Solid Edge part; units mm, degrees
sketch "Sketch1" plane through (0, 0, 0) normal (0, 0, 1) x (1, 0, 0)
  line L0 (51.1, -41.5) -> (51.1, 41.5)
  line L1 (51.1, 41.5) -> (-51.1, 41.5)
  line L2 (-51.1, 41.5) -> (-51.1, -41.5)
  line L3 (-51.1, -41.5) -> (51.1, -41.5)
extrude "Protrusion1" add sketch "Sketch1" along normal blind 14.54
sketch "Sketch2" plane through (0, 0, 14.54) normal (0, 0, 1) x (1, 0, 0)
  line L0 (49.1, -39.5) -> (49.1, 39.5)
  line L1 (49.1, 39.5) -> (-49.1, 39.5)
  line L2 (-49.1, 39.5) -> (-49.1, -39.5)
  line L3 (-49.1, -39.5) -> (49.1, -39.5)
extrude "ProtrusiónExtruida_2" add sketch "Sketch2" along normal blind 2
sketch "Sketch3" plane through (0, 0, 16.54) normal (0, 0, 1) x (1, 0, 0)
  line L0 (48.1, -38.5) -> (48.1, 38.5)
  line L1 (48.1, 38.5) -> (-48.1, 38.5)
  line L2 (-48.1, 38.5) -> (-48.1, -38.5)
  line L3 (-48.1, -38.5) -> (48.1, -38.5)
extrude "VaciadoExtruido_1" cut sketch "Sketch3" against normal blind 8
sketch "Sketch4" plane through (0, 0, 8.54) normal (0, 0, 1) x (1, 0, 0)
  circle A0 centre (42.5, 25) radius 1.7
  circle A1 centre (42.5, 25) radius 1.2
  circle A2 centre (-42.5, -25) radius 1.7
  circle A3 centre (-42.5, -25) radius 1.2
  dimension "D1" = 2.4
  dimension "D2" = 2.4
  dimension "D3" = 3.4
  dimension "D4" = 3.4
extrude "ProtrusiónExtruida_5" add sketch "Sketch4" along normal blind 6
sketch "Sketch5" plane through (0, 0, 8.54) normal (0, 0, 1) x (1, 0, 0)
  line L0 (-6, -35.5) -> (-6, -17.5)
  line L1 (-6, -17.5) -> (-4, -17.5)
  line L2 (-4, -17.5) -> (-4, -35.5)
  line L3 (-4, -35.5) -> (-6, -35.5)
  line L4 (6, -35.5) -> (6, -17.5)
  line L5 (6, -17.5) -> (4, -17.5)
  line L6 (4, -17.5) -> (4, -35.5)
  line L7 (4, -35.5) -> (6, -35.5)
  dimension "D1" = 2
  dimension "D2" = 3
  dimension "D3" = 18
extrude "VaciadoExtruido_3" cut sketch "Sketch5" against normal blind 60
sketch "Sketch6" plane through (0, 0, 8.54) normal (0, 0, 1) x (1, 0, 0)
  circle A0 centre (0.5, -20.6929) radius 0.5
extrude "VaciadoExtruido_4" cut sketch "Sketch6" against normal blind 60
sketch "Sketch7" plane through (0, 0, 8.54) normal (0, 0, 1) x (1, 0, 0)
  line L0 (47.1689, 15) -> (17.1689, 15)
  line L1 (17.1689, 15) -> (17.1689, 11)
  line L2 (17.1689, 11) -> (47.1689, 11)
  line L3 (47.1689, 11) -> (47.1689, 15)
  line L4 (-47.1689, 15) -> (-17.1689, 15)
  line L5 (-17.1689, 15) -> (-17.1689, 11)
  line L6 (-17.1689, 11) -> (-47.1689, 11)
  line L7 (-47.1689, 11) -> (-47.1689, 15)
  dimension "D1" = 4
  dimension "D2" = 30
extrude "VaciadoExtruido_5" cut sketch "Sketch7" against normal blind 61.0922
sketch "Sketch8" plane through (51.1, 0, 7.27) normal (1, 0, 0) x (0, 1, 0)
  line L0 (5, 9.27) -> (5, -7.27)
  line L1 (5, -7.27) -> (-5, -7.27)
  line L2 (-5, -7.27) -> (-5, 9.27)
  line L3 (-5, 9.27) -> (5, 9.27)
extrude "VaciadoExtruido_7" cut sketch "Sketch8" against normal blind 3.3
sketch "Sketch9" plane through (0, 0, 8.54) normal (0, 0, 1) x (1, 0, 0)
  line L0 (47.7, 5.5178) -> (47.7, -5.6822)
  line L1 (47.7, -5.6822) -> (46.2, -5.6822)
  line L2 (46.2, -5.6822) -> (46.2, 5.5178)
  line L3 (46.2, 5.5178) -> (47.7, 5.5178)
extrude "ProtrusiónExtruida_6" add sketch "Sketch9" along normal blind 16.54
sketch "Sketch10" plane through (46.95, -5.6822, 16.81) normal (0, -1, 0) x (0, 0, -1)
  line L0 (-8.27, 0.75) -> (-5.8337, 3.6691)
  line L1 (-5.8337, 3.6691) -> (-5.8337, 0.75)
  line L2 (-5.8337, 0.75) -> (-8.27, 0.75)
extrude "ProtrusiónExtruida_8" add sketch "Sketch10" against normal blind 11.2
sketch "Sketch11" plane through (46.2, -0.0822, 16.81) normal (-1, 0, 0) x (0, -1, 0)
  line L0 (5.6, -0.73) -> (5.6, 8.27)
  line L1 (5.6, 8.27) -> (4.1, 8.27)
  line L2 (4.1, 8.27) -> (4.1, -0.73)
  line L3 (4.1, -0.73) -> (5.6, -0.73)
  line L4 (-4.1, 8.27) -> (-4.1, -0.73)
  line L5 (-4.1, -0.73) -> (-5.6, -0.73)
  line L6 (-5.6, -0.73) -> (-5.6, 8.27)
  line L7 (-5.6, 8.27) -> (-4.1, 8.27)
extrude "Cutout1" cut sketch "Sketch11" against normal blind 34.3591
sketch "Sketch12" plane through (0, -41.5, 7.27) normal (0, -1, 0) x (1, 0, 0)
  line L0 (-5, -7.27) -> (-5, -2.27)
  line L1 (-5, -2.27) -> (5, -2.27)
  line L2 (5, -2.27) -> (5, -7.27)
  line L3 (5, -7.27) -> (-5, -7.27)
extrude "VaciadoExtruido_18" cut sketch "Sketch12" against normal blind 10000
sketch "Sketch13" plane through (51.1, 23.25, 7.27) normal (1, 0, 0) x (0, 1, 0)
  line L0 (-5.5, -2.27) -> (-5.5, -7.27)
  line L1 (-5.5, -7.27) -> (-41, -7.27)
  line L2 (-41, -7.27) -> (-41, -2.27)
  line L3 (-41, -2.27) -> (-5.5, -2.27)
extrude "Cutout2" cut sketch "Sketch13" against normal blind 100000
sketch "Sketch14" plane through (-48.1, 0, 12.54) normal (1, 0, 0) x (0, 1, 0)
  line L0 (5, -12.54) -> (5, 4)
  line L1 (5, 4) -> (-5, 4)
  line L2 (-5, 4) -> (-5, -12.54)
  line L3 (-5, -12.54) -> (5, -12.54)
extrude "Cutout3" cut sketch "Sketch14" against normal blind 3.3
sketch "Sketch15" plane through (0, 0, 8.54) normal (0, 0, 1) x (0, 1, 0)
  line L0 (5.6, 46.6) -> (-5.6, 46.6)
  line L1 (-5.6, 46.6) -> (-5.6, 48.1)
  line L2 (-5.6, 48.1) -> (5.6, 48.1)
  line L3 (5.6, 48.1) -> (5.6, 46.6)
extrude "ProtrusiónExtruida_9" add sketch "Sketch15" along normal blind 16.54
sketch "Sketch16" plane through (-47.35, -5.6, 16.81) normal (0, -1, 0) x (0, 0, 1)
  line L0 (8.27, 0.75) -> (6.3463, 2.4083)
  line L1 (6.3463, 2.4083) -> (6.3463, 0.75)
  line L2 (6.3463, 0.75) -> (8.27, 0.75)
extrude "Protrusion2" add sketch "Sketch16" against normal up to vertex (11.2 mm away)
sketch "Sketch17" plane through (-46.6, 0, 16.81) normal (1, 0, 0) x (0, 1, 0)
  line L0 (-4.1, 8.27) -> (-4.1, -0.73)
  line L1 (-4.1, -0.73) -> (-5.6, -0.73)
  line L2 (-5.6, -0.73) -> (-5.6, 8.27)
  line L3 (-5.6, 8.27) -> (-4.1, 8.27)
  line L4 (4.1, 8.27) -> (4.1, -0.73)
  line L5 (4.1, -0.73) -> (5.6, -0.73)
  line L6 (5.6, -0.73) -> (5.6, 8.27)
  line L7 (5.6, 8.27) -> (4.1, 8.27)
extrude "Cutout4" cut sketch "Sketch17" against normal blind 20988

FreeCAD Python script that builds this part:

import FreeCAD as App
import Part
import Sketcher
Q = App.Units.Quantity

doc = App.newDocument("Part")
body = doc.addObject("PartDesign::Body", "Body")

# Sketch on XY plane
sketch1 = body.newObject("Sketcher::SketchObject", "Sketch")
sketch1.AttachmentSupport = (doc.getObject("XY_Plane"), [""])
sketch1.MapMode = "FlatFace"
sketch1.addGeometry(Part.LineSegment(App.Vector(-51, -42, 0), App.Vector(51, -42, 0)), False)
sketch1.addGeometry(Part.LineSegment(App.Vector(51, -42, 0), App.Vector(51, 42, 0)), False)
sketch1.addGeometry(Part.LineSegment(App.Vector(51, 42, 0), App.Vector(-51, 42, 0)), False)
sketch1.addGeometry(Part.LineSegment(App.Vector(-51, 42, 0), App.Vector(-51, -42, 0)), False)
sketch1.addConstraint(Sketcher.Constraint("Coincident", 0, 2, 1, 1))
sketch1.addConstraint(Sketcher.Constraint("Coincident", 1, 2, 2, 1))
sketch1.addConstraint(Sketcher.Constraint("Coincident", 2, 2, 3, 1))
sketch1.addConstraint(Sketcher.Constraint("Coincident", 3, 2, 0, 1))
sketch1.addConstraint(Sketcher.Constraint("Horizontal", 0))
sketch1.addConstraint(Sketcher.Constraint("Vertical", 1))
sketch1.addConstraint(Sketcher.Constraint("Horizontal", 2))
sketch1.addConstraint(Sketcher.Constraint("Vertical", 3))
sketch1.addConstraint(Sketcher.Constraint("Symmetric", 0, 2, 2, 2, -1, 1))
sketch1.addConstraint(Sketcher.Constraint("DistanceY", 1, 1, 1, 2, Q("83 mm")))
sketch1.addConstraint(Sketcher.Constraint("DistanceX", 0, 1, 0, 2, Q("102.2 mm")))
pad1 = body.newObject("PartDesign::Pad", "Pad")
pad1.Profile = sketch1
pad1.Length = 14.54

# Sketch on XY plane
sketch2 = body.newObject("Sketcher::SketchObject", "Sketch001")
sketch2.AttachmentSupport = (doc.getObject("XY_Plane"), [""])
sketch2.MapMode = "FlatFace"
sketch2.AttachmentOffset = App.Placement(App.Vector(0, 0, 14.54), App.Rotation())
sketch2.addGeometry(Part.LineSegment(App.Vector(-49, -40, 0), App.Vector(49, -40, 0)), False)
sketch2.addGeometry(Part.LineSegment(App.Vector(49, -40, 0), App.Vector(49, 40, 0)), False)
sketch2.addGeometry(Part.LineSegment(App.Vector(49, 40, 0), App.Vector(-49, 40, 0)), False)
sketch2.addGeometry(Part.LineSegment(App.Vector(-49, 40, 0), App.Vector(-49, -40, 0)), False)
sketch2.addConstraint(Sketcher.Constraint("Coincident", 0, 2, 1, 1))
sketch2.addConstraint(Sketcher.Constraint("Coincident", 1, 2, 2, 1))
sketch2.addConstraint(Sketcher.Constraint("Coincident", 2, 2, 3, 1))
sketch2.addConstraint(Sketcher.Constraint("Coincident", 3, 2, 0, 1))
sketch2.addConstraint(Sketcher.Constraint("Horizontal", 0))
sketch2.addConstraint(Sketcher.Constraint("Vertical", 1))
sketch2.addConstraint(Sketcher.Constraint("Horizontal", 2))
sketch2.addConstraint(Sketcher.Constraint("Vertical", 3))
sketch2.addConstraint(Sketcher.Constraint("Symmetric", 0, 2, 2, 2, -1, 1))
sketch2.addConstraint(Sketcher.Constraint("DistanceY", 1, 1, 1, 2, Q("79 mm")))
sketch2.addConstraint(Sketcher.Constraint("DistanceX", 0, 1, 0, 2, Q("98.2 mm")))
pad2 = body.newObject("PartDesign::Pad", "Pad001")
pad2.Profile = sketch2
pad2.Length = 2

# Sketch on XY plane
sketch3 = body.newObject("Sketcher::SketchObject", "Sketch002")
sketch3.AttachmentSupport = (doc.getObject("XY_Plane"), [""])
sketch3.MapMode = "FlatFace"
sketch3.AttachmentOffset = App.Placement(App.Vector(0, 0, 16.54), App.Rotation())
sketch3.addGeometry(Part.LineSegment(App.Vector(-48, -38, 0), App.Vector(48, -38, 0)), False)
sketch3.addGeometry(Part.LineSegment(App.Vector(48, -38, 0), App.Vector(48, 38, 0)), False)
sketch3.addGeometry(Part.LineSegment(App.Vector(48, 38, 0), App.Vector(-48, 38, 0)), False)
sketch3.addGeometry(Part.LineSegment(App.Vector(-48, 38, 0), App.Vector(-48, -38, 0)), False)
sketch3.addConstraint(Sketcher.Constraint("Coincident", 0, 2, 1, 1))
sketch3.addConstraint(Sketcher.Constraint("Coincident", 1, 2, 2, 1))
sketch3.addConstraint(Sketcher.Constraint("Coincident", 2, 2, 3, 1))
sketch3.addConstraint(Sketcher.Constraint("Coincident", 3, 2, 0, 1))
sketch3.addConstraint(Sketcher.Constraint("Horizontal", 0))
sketch3.addConstraint(Sketcher.Constraint("Vertical", 1))
sketch3.addConstraint(Sketcher.Constraint("Horizontal", 2))
sketch3.addConstraint(Sketcher.Constraint("Vertical", 3))
sketch3.addConstraint(Sketcher.Constraint("Symmetric", 0, 2, 2, 2, -1, 1))
sketch3.addConstraint(Sketcher.Constraint("DistanceY", 1, 1, 1, 2, Q("77 mm")))
sketch3.addConstraint(Sketcher.Constraint("DistanceX", 0, 1, 0, 2, Q("96.2 mm")))
pocket1 = body.newObject("PartDesign::Pocket", "Pocket")
pocket1.Profile = sketch3
pocket1.Length = 8

# Sketch on XY plane
sketch4 = body.newObject("Sketcher::SketchObject", "Sketch003")
sketch4.AttachmentSupport = (doc.getObject("XY_Plane"), [""])
sketch4.MapMode = "FlatFace"
sketch4.AttachmentOffset = App.Placement(App.Vector(0, 0, 8.54), App.Rotation())
sketch4.addGeometry(Part.Circle(App.Vector(42.5, 25, 0), App.Vector(0, 0, 1), 1.7), False)
sketch4.addGeometry(Part.Circle(App.Vector(42.5, 25, 0), App.Vector(0, 0, 1), 1.2), False)
sketch4.addGeometry(Part.Circle(App.Vector(-42.5, -25, 0), App.Vector(0, 0, 1), 1.7), False)
sketch4.addGeometry(Part.Circle(App.Vector(-42.5, -25, 0), App.Vector(0, 0, 1), 1.2), False)
sketch4.addConstraint(Sketcher.Constraint("Coincident", 1, 3, 0, 3))
sketch4.addConstraint(Sketcher.Constraint("Coincident", 3, 3, 2, 3))
sketch4.addConstraint(Sketcher.Constraint("Equal", 0, 2))
sketch4.addConstraint(Sketcher.Constraint("Equal", 1, 3))
sketch4.addConstraint(Sketcher.Constraint("Symmetric", 0, 3, 2, 3, -1, 1))
sketch4.addConstraint(Sketcher.Constraint("Diameter", 0, Q("3.4 mm")))
sketch4.addConstraint(Sketcher.Constraint("Diameter", 1, Q("2.4 mm")))
sketch4.addConstraint(Sketcher.Constraint("DistanceY", -1, 1, 0, 3, Q("25 mm")))
sketch4.addConstraint(Sketcher.Constraint("DistanceX", 2, 3, 0, 3, Q("85 mm")))
pad3 = body.newObject("PartDesign::Pad", "Pad002")
pad3.Profile = sketch4
pad3.Length = 6

# Sketch on XY plane
sketch5 = body.newObject("Sketcher::SketchObject", "Sketch004")
sketch5.AttachmentSupport = (doc.getObject("XY_Plane"), [""])
sketch5.MapMode = "FlatFace"
sketch5.AttachmentOffset = App.Placement(App.Vector(0, 0, 8.54), App.Rotation())
sketch5.addGeometry(Part.LineSegment(App.Vector(-6, -17.5, 0), App.Vector(-6, -35.5, 0)), False)
sketch5.addGeometry(Part.LineSegment(App.Vector(-6, -35.5, 0), App.Vector(-4, -35.5, 0)), False)
sketch5.addGeometry(Part.LineSegment(App.Vector(-4, -35.5, 0), App.Vector(-4, -17.5, 0)), False)
sketch5.addGeometry(Part.LineSegment(App.Vector(-4, -17.5, 0), App.Vector(-6, -17.5, 0)), False)
sketch5.addGeometry(Part.LineSegment(App.Vector(4, -35.5, 0), App.Vector(6, -35.5, 0)), False)
sketch5.addGeometry(Part.LineSegment(App.Vector(6, -35.5, 0), App.Vector(6, -17.5, 0)), False)
sketch5.addGeometry(Part.LineSegment(App.Vector(6, -17.5, 0), App.Vector(4, -17.5, 0)), False)
sketch5.addGeometry(Part.LineSegment(App.Vector(4, -17.5, 0), App.Vector(4, -35.5, 0)), False)
sketch5.addConstraint(Sketcher.Constraint("Coincident", 0, 2, 1, 1))
sketch5.addConstraint(Sketcher.Constraint("Coincident", 1, 2, 2, 1))
sketch5.addConstraint(Sketcher.Constraint("Coincident", 2, 2, 3, 1))
sketch5.addConstraint(Sketcher.Constraint("Coincident", 3, 2, 0, 1))
sketch5.addConstraint(Sketcher.Constraint("Coincident", 4, 2, 5, 1))
sketch5.addConstraint(Sketcher.Constraint("Coincident", 5, 2, 6, 1))
sketch5.addConstraint(Sketcher.Constraint("Coincident", 6, 2, 7, 1))
sketch5.addConstraint(Sketcher.Constraint("Coincident", 7, 2, 4, 1))
sketch5.addConstraint(Sketcher.Constraint("Vertical", 0))
sketch5.addConstraint(Sketcher.Constraint("Horizontal", 1))
sketch5.addConstraint(Sketcher.Constraint("Vertical", 2))
sketch5.addConstraint(Sketcher.Constraint("Horizontal", 3))
sketch5.addConstraint(Sketcher.Constraint("Horizontal", 4))
sketch5.addConstraint(Sketcher.Constraint("Vertical", 5))
sketch5.addConstraint(Sketcher.Constraint("Horizontal", 6))
sketch5.addConstraint(Sketcher.Constraint("Vertical", 7))
sketch5.addConstraint(Sketcher.Constraint("Symmetric", 0, 2, 4, 2, -2))
sketch5.addConstraint(Sketcher.Constraint("Symmetric", 2, 2, 6, 2, -2))
sketch5.addConstraint(Sketcher.Constraint("DistanceX", 1, 1, 1, 2, Q("2 mm")))
sketch5.addConstraint(Sketcher.Constraint("DistanceY", 0, 2, 0, 1, Q("18 mm")))
sketch5.addConstraint(Sketcher.Constraint("DistanceX", 0, 2, -1, 1, Q("6 mm")))
sketch5.addConstraint(Sketcher.Constraint("DistanceY", 0, 2, -1, 1, Q("35.5 mm")))
pocket2 = body.newObject("PartDesign::Pocket", "Pocket001")
pocket2.Profile = sketch5
pocket2.Length = 60

# Sketch on XY plane
sketch6 = body.newObject("Sketcher::SketchObject", "Sketch005")
sketch6.AttachmentSupport = (doc.getObject("XY_Plane"), [""])
sketch6.MapMode = "FlatFace"
sketch6.AttachmentOffset = App.Placement(App.Vector(0, 0, 8.54), App.Rotation())
sketch6.addGeometry(Part.Circle(App.Vector(0.5, -20.7, 0), App.Vector(0, 0, 1), 0.5), False)
sketch6.addConstraint(Sketcher.Constraint("Diameter", 0, Q("1 mm")))
sketch6.addConstraint(Sketcher.Constraint("DistanceX", -1, 1, 0, 3, Q("0.5 mm")))
sketch6.addConstraint(Sketcher.Constraint("DistanceY", 0, 3, -1, 1, Q("20.693 mm")))
pocket3 = body.newObject("PartDesign::Pocket", "Pocket002")
pocket3.Profile = sketch6
pocket3.Length = 60

# Sketch on XY plane
sketch7 = body.newObject("Sketcher::SketchObject", "Sketch006")
sketch7.AttachmentSupport = (doc.getObject("XY_Plane"), [""])
sketch7.MapMode = "FlatFace"
sketch7.AttachmentOffset = App.Placement(App.Vector(0, 0, 8.54), App.Rotation())
sketch7.addGeometry(Part.LineSegment(App.Vector(47.2, 11, 0), App.Vector(47.2, 15, 0)), False)
sketch7.addGeometry(Part.LineSegment(App.Vector(47.2, 15, 0), App.Vector(17.2, 15, 0)), False)
sketch7.addGeometry(Part.LineSegment(App.Vector(17.2, 15, 0), App.Vector(17.2, 11, 0)), False)
sketch7.addGeometry(Part.LineSegment(App.Vector(17.2, 11, 0), App.Vector(47.2, 11, 0)), False)
sketch7.addGeometry(Part.LineSegment(App.Vector(-17.2, 15, 0), App.Vector(-47.2, 15, 0)), False)
sketch7.addGeometry(Part.LineSegment(App.Vector(-47.2, 15, 0), App.Vector(-47.2, 11, 0)), False)
sketch7.addGeometry(Part.LineSegment(App.Vector(-47.2, 11, 0), App.Vector(-17.2, 11, 0)), False)
sketch7.addGeometry(Part.LineSegment(App.Vector(-17.2, 11, 0), App.Vector(-17.2, 15, 0)), False)
sketch7.addConstraint(Sketcher.Constraint("Coincident", 0, 2, 1, 1))
sketch7.addConstraint(Sketcher.Constraint("Coincident", 1, 2, 2, 1))
sketch7.addConstraint(Sketcher.Constraint("Coincident", 2, 2, 3, 1))
sketch7.addConstraint(Sketcher.Constraint("Coincident", 3, 2, 0, 1))
sketch7.addConstraint(Sketcher.Constraint("Coincident", 4, 2, 5, 1))
sketch7.addConstraint(Sketcher.Constraint("Coincident", 5, 2, 6, 1))
sketch7.addConstraint(Sketcher.Constraint("Coincident", 6, 2, 7, 1))
sketch7.addConstraint(Sketcher.Constraint("Coincident", 7, 2, 4, 1))
sketch7.addConstraint(Sketcher.Constraint("Vertical", 0))
sketch7.addConstraint(Sketcher.Constraint("Horizontal", 1))
sketch7.addConstraint(Sketcher.Constraint("Vertical", 2))
sketch7.addConstraint(Sketcher.Constraint("Horizontal", 3))
sketch7.addConstraint(Sketcher.Constraint("Horizontal", 4))
sketch7.addConstraint(Sketcher.Constraint("Vertical", 5))
sketch7.addConstraint(Sketcher.Constraint("Horizontal", 6))
sketch7.addConstraint(Sketcher.Constraint("Vertical", 7))
sketch7.addConstraint(Sketcher.Constraint("Symmetric", 0, 2, 4, 2, -2))
sketch7.addConstraint(Sketcher.Constraint("Symmetric", 2, 2, 6, 2, -2))
sketch7.addConstraint(Sketcher.Constraint("DistanceX", 1, 2, 1, 1, Q("30 mm")))
sketch7.addConstraint(Sketcher.Constraint("DistanceY", 0, 1, 0, 2, Q("4 mm")))
sketch7.addConstraint(Sketcher.Constraint("DistanceY", -1, 1, 0, 2, Q("15 mm")))
sketch7.addConstraint(Sketcher.Constraint("DistanceX", -1, 1, 0, 2, Q("47.169 mm")))
pocket4 = body.newObject("PartDesign::Pocket", "Pocket003")
pocket4.Profile = sketch7
pocket4.Length = 61.0922

# Sketch on YZ plane
sketch8 = body.newObject("Sketcher::SketchObject", "Sketch007")
sketch8.AttachmentSupport = (doc.getObject("YZ_Plane"), [""])
sketch8.MapMode = "FlatFace"
sketch8.AttachmentOffset = App.Placement(App.Vector(0, 0, 51.1), App.Rotation())
sketch8.addGeometry(Part.LineSegment(App.Vector(5, 0, 0), App.Vector(5, 17, 0)), False)
sketch8.addGeometry(Part.LineSegment(App.Vector(5, 17, 0), App.Vector(-5, 17, 0)), False)
sketch8.addGeometry(Part.LineSegment(App.Vector(-5, 17, 0), App.Vector(-5, 0, 0)), False)
sketch8.addGeometry(Part.LineSegment(App.Vector(-5, 0, 0), App.Vector(5, 0, 0)), False)
sketch8.addConstraint(Sketcher.Constraint("Coincident", 0, 2, 1, 1))
sketch8.addConstraint(Sketcher.Constraint("Coincident", 1, 2, 2, 1))
sketch8.addConstraint(Sketcher.Constraint("Coincident", 2, 2, 3, 1))
sketch8.addConstraint(Sketcher.Constraint("Coincident", 3, 2, 0, 1))
sketch8.addConstraint(Sketcher.Constraint("Vertical", 0))
sketch8.addConstraint(Sketcher.Constraint("Horizontal", 1))
sketch8.addConstraint(Sketcher.Constraint("Vertical", 2))
sketch8.addConstraint(Sketcher.Constraint("Horizontal", 3))
sketch8.addConstraint(Sketcher.Constraint("Symmetric", 2, 2, 3, 2, -1, 1))
sketch8.addConstraint(Sketcher.Constraint("DistanceX", 1, 2, 1, 1, Q("10 mm")))
sketch8.addConstraint(Sketcher.Constraint("DistanceY", 0, 1, 0, 2, Q("16.54 mm")))
pocket5 = body.newObject("PartDesign::Pocket", "Pocket004")
pocket5.Profile = sketch8
pocket5.Length = 3.3

# Sketch on XY plane
sketch9 = body.newObject("Sketcher::SketchObject", "Sketch008")
sketch9.AttachmentSupport = (doc.getObject("XY_Plane"), [""])
sketch9.MapMode = "FlatFace"
sketch9.AttachmentOffset = App.Placement(App.Vector(0, 0, 8.54), App.Rotation())
sketch9.addGeometry(Part.LineSegment(App.Vector(47.7, -5.7, 0), App.Vector(47.7, 5.5, 0)), False)
sketch9.addGeometry(Part.LineSegment(App.Vector(47.7, 5.5, 0), App.Vector(46.2, 5.5, 0)), False)
sketch9.addGeometry(Part.LineSegment(App.Vector(46.2, 5.5, 0), App.Vector(46.2, -5.7, 0)), False)
sketch9.addGeometry(Part.LineSegment(App.Vector(46.2, -5.7, 0), App.Vector(47.7, -5.7, 0)), False)
sketch9.addConstraint(Sketcher.Constraint("Coincident", 0, 2, 1, 1))
sketch9.addConstraint(Sketcher.Constraint("Coincident", 1, 2, 2, 1))
sketch9.addConstraint(Sketcher.Constraint("Coincident", 2, 2, 3, 1))
sketch9.addConstraint(Sketcher.Constraint("Coincident", 3, 2, 0, 1))
sketch9.addConstraint(Sketcher.Constraint("Vertical", 0))
sketch9.addConstraint(Sketcher.Constraint("Horizontal", 1))
sketch9.addConstraint(Sketcher.Constraint("Vertical", 2))
sketch9.addConstraint(Sketcher.Constraint("Horizontal", 3))
sketch9.addConstraint(Sketcher.Constraint("DistanceX", 1, 2, 1, 1, Q("1.5 mm")))
sketch9.addConstraint(Sketcher.Constraint("DistanceY", 0, 1, 0, 2, Q("11.2 mm")))
sketch9.addConstraint(Sketcher.Constraint("DistanceX", -1, 1, 0, 2, Q("47.7 mm")))
sketch9.addConstraint(Sketcher.Constraint("DistanceY", -1, 1, 0, 2, Q("5.5178 mm")))
pad4 = body.newObject("PartDesign::Pad", "Pad003")
pad4.Profile = sketch9
pad4.Length = 16.54

# Sketch on XZ plane
sketch10 = body.newObject("Sketcher::SketchObject", "Sketch009")
sketch10.AttachmentSupport = (doc.getObject("XZ_Plane"), [""])
sketch10.MapMode = "FlatFace"
sketch10.AttachmentOffset = App.Placement(App.Vector(0, 0, 5.6822), App.Rotation())
sketch10.addGeometry(Part.LineSegment(App.Vector(50.6, 22.6, 0), App.Vector(47.7, 25.1, 0)), False)
sketch10.addGeometry(Part.LineSegment(App.Vector(47.7, 25.1, 0), App.Vector(47.7, 22.6, 0)), False)
sketch10.addGeometry(Part.LineSegment(App.Vector(47.7, 22.6, 0), App.Vector(50.6, 22.6, 0)), False)
sketch10.addConstraint(Sketcher.Constraint("Coincident", 0, 2, 1, 1))
sketch10.addConstraint(Sketcher.Constraint("Coincident", 1, 2, 2, 1))
sketch10.addConstraint(Sketcher.Constraint("Coincident", 2, 2, 0, 1))
sketch10.addConstraint(Sketcher.Constraint("Vertical", 1))
sketch10.addConstraint(Sketcher.Constraint("Horizontal", 2))
sketch10.addConstraint(Sketcher.Constraint("DistanceX", -1, 1, 0, 2, Q("47.7 mm")))
sketch10.addConstraint(Sketcher.Constraint("DistanceX", 2, 1, 2, 2, Q("2.919 mm")))
sketch10.addConstraint(Sketcher.Constraint("DistanceY", -1, 1, 0, 2, Q("25.08 mm")))
sketch10.addConstraint(Sketcher.Constraint("DistanceY", 1, 2, 1, 1, Q("2.4363 mm")))
pad5 = body.newObject("PartDesign::Pad", "Pad004")
pad5.Profile = sketch10
pad5.Length = 11.2
pad5.Reversed = True

# Sketch on YZ plane
sketch11 = body.newObject("Sketcher::SketchObject", "Sketch010")
sketch11.AttachmentSupport = (doc.getObject("YZ_Plane"), [""])
sketch11.MapMode = "FlatFace"
sketch11.AttachmentOffset = App.Placement(App.Vector(0, 0, 46.2), App.Rotation())
sketch11.addGeometry(Part.LineSegment(App.Vector(-4.2, 16.1, 0), App.Vector(-5.7, 16.1, 0)), False)
sketch11.addGeometry(Part.LineSegment(App.Vector(-5.7, 16.1, 0), App.Vector(-5.7, 25.1, 0)), False)
sketch11.addGeometry(Part.LineSegment(App.Vector(-5.7, 25.1, 0), App.Vector(-4.2, 25.1, 0)), False)
sketch11.addGeometry(Part.LineSegment(App.Vector(-4.2, 25.1, 0), App.Vector(-4.2, 16.1, 0)), False)
sketch11.addGeometry(Part.LineSegment(App.Vector(4, 16.1, 0), App.Vector(4, 25.1, 0)), False)
sketch11.addGeometry(Part.LineSegment(App.Vector(4, 25.1, 0), App.Vector(5.5, 25.1, 0)), False)
sketch11.addGeometry(Part.LineSegment(App.Vector(5.5, 25.1, 0), App.Vector(5.5, 16.1, 0)), False)
sketch11.addGeometry(Part.LineSegment(App.Vector(5.5, 16.1, 0), App.Vector(4, 16.1, 0)), False)
sketch11.addConstraint(Sketcher.Constraint("Coincident", 0, 2, 1, 1))
sketch11.addConstraint(Sketcher.Constraint("Coincident", 1, 2, 2, 1))
sketch11.addConstraint(Sketcher.Constraint("Coincident", 2, 2, 3, 1))
sketch11.addConstraint(Sketcher.Constraint("Coincident", 3, 2, 0, 1))
sketch11.addConstraint(Sketcher.Constraint("Coincident", 4, 2, 5, 1))
sketch11.addConstraint(Sketcher.Constraint("Coincident", 5, 2, 6, 1))
sketch11.addConstraint(Sketcher.Constraint("Coincident", 6, 2, 7, 1))
sketch11.addConstraint(Sketcher.Constraint("Coincident", 7, 2, 4, 1))
sketch11.addConstraint(Sketcher.Constraint("Horizontal", 0))
sketch11.addConstraint(Sketcher.Constraint("Vertical", 1))
sketch11.addConstraint(Sketcher.Constraint("Horizontal", 2))
sketch11.addConstraint(Sketcher.Constraint("Vertical", 3))
sketch11.addConstraint(Sketcher.Constraint("Vertical", 4))
sketch11.addConstraint(Sketcher.Constraint("Horizontal", 5))
sketch11.addConstraint(Sketcher.Constraint("Vertical", 6))
sketch11.addConstraint(Sketcher.Constraint("Horizontal", 7))
sketch11.addConstraint(Sketcher.Constraint("Horizontal", 2, 2, 4, 2))
sketch11.addConstraint(Sketcher.Constraint("Horizontal", 3, 2, 6, 2))
sketch11.addConstraint(Sketcher.Constraint("Equal", 2, 5))
sketch11.addConstraint(Sketcher.Constraint("DistanceY", 1, 1, 1, 2, Q("9 mm")))
sketch11.addConstraint(Sketcher.Constraint("DistanceX", 0, 2, 0, 1, Q("1.5 mm")))
sketch11.addConstraint(Sketcher.Constraint("DistanceX", 2, 2, 4, 2, Q("8.2 mm")))
sketch11.addConstraint(Sketcher.Constraint("DistanceY", -1, 1, 0, 2, Q("16.08 mm")))
sketch11.addConstraint(Sketcher.Constraint("DistanceX", 0, 2, -1, 1, Q("5.6822 mm")))
pocket6 = body.newObject("PartDesign::Pocket", "Pocket005")
pocket6.Profile = sketch11
pocket6.Length = 34.3591
pocket6.Reversed = True

# Sketch on XZ plane
sketch12 = body.newObject("Sketcher::SketchObject", "Sketch011")
sketch12.AttachmentSupport = (doc.getObject("XZ_Plane"), [""])
sketch12.MapMode = "FlatFace"
sketch12.AttachmentOffset = App.Placement(App.Vector(0, 0, 41.5), App.Rotation())
sketch12.addGeometry(Part.LineSegment(App.Vector(-5, 5, 0), App.Vector(-5, 0, 0)), False)
sketch12.addGeometry(Part.LineSegment(App.Vector(-5, 0, 0), App.Vector(5, 0, 0)), False)
sketch12.addGeometry(Part.LineSegment(App.Vector(5, 0, 0), App.Vector(5, 5, 0)), False)
sketch12.addGeometry(Part.LineSegment(App.Vector(5, 5, 0), App.Vector(-5, 5, 0)), False)
sketch12.addConstraint(Sketcher.Constraint("Coincident", 0, 2, 1, 1))
sketch12.addConstraint(Sketcher.Constraint("Coincident", 1, 2, 2, 1))
sketch12.addConstraint(Sketcher.Constraint("Coincident", 2, 2, 3, 1))
sketch12.addConstraint(Sketcher.Constraint("Coincident", 3, 2, 0, 1))
sketch12.addConstraint(Sketcher.Constraint("Vertical", 0))
sketch12.addConstraint(Sketcher.Constraint("Horizontal", 1))
sketch12.addConstraint(Sketcher.Constraint("Vertical", 2))
sketch12.addConstraint(Sketcher.Constraint("Horizontal", 3))
sketch12.addConstraint(Sketcher.Constraint("Symmetric", 0, 2, 1, 2, -1, 1))
sketch12.addConstraint(Sketcher.Constraint("DistanceX", 1, 1, 1, 2, Q("10 mm")))
sketch12.addConstraint(Sketcher.Constraint("DistanceY", 0, 2, 0, 1, Q("5 mm")))
pocket7 = body.newObject("PartDesign::Pocket", "Pocket006")
pocket7.Profile = sketch12
pocket7.Length = 10000

# Sketch on YZ plane
sketch13 = body.newObject("Sketcher::SketchObject", "Sketch012")
sketch13.AttachmentSupport = (doc.getObject("YZ_Plane"), [""])
sketch13.MapMode = "FlatFace"
sketch13.AttachmentOffset = App.Placement(App.Vector(0, 0, 51.1), App.Rotation())
sketch13.addGeometry(Part.LineSegment(App.Vector(18, 0, 0), App.Vector(18, 5, 0)), False)
sketch13.addGeometry(Part.LineSegment(App.Vector(18, 5, 0), App.Vector(-18, 5, 0)), False)
sketch13.addGeometry(Part.LineSegment(App.Vector(-18, 5, 0), App.Vector(-18, 0, 0)), False)
sketch13.addGeometry(Part.LineSegment(App.Vector(-18, 0, 0), App.Vector(18, 0, 0)), False)
sketch13.addConstraint(Sketcher.Constraint("Coincident", 0, 2, 1, 1))
sketch13.addConstraint(Sketcher.Constraint("Coincident", 1, 2, 2, 1))
sketch13.addConstraint(Sketcher.Constraint("Coincident", 2, 2, 3, 1))
sketch13.addConstraint(Sketcher.Constraint("Coincident", 3, 2, 0, 1))
sketch13.addConstraint(Sketcher.Constraint("Vertical", 0))
sketch13.addConstraint(Sketcher.Constraint("Horizontal", 1))
sketch13.addConstraint(Sketcher.Constraint("Vertical", 2))
sketch13.addConstraint(Sketcher.Constraint("Horizontal", 3))
sketch13.addConstraint(Sketcher.Constraint("Symmetric", 2, 2, 3, 2, -1, 1))
sketch13.addConstraint(Sketcher.Constraint("DistanceY", 0, 1, 0, 2, Q("5 mm")))
sketch13.addConstraint(Sketcher.Constraint("DistanceX", 1, 2, 1, 1, Q("35.5 mm")))
pocket8 = body.newObject("PartDesign::Pocket", "Pocket007")
pocket8.Profile = sketch13
pocket8.Length = 100000

# Sketch on YZ plane
sketch14 = body.newObject("Sketcher::SketchObject", "Sketch013")
sketch14.AttachmentSupport = (doc.getObject("YZ_Plane"), [""])
sketch14.MapMode = "FlatFace"
sketch14.AttachmentOffset = App.Placement(App.Vector(0, 0, -48.1), App.Rotation())
sketch14.addGeometry(Part.LineSegment(App.Vector(-5, 0, 0), App.Vector(5, 0, 0)), False)
sketch14.addGeometry(Part.LineSegment(App.Vector(5, 0, 0), App.Vector(5, 17, 0)), False)
sketch14.addGeometry(Part.LineSegment(App.Vector(5, 17, 0), App.Vector(-5, 17, 0)), False)
sketch14.addGeometry(Part.LineSegment(App.Vector(-5, 17, 0), App.Vector(-5, 0, 0)), False)
sketch14.addConstraint(Sketcher.Constraint("Coincident", 0, 2, 1, 1))
sketch14.addConstraint(Sketcher.Constraint("Coincident", 1, 2, 2, 1))
sketch14.addConstraint(Sketcher.Constraint("Coincident", 2, 2, 3, 1))
sketch14.addConstraint(Sketcher.Constraint("Coincident", 3, 2, 0, 1))
sketch14.addConstraint(Sketcher.Constraint("Horizontal", 0))
sketch14.addConstraint(Sketcher.Constraint("Vertical", 1))
sketch14.addConstraint(Sketcher.Constraint("Horizontal", 2))
sketch14.addConstraint(Sketcher.Constraint("Vertical", 3))
sketch14.addConstraint(Sketcher.Constraint("Symmetric", 0, 2, 3, 2, -1, 1))
sketch14.addConstraint(Sketcher.Constraint("DistanceX", 0, 1, 0, 2, Q("10 mm")))
sketch14.addConstraint(Sketcher.Constraint("DistanceY", 1, 1, 1, 2, Q("16.54 mm")))
pocket9 = body.newObject("PartDesign::Pocket", "Pocket008")
pocket9.Profile = sketch14
pocket9.Length = 3.3

# Sketch on XY plane
sketch15 = body.newObject("Sketcher::SketchObject", "Sketch014")
sketch15.AttachmentSupport = (doc.getObject("XY_Plane"), [""])
sketch15.MapMode = "FlatFace"
sketch15.AttachmentOffset = App.Placement(App.Vector(0, 0, 8.54), App.Rotation())
sketch15.addGeometry(Part.LineSegment(App.Vector(-46.6, -5.6, 0), App.Vector(-46.6, 5.6, 0)), False)
sketch15.addGeometry(Part.LineSegment(App.Vector(-46.6, 5.6, 0), App.Vector(-48.1, 5.6, 0)), False)
sketch15.addGeometry(Part.LineSegment(App.Vector(-48.1, 5.6, 0), App.Vector(-48.1, -5.6, 0)), False)
sketch15.addGeometry(Part.LineSegment(App.Vector(-48.1, -5.6, 0), App.Vector(-46.6, -5.6, 0)), False)
sketch15.addConstraint(Sketcher.Constraint("Coincident", 0, 2, 1, 1))
sketch15.addConstraint(Sketcher.Constraint("Coincident", 1, 2, 2, 1))
sketch15.addConstraint(Sketcher.Constraint("Coincident", 2, 2, 3, 1))
sketch15.addConstraint(Sketcher.Constraint("Coincident", 3, 2, 0, 1))
sketch15.addConstraint(Sketcher.Constraint("Vertical", 0))
sketch15.addConstraint(Sketcher.Constraint("Horizontal", 1))
sketch15.addConstraint(Sketcher.Constraint("Vertical", 2))
sketch15.addConstraint(Sketcher.Constraint("Horizontal", 3))
sketch15.addConstraint(Sketcher.Constraint("DistanceX", 1, 2, 1, 1, Q("1.5 mm")))
sketch15.addConstraint(Sketcher.Constraint("DistanceY", 0, 1, 0, 2, Q("11.2 mm")))
sketch15.addConstraint(Sketcher.Constraint("DistanceX", 0, 2, -1, 1, Q("46.6 mm")))
sketch15.addConstraint(Sketcher.Constraint("DistanceY", -1, 1, 0, 2, Q("5.6 mm")))
pad6 = body.newObject("PartDesign::Pad", "Pad005")
pad6.Profile = sketch15
pad6.Length = 16.54

# Sketch on XZ plane
sketch16 = body.newObject("Sketcher::SketchObject", "Sketch015")
sketch16.AttachmentSupport = (doc.getObject("XZ_Plane"), [""])
sketch16.MapMode = "FlatFace"
sketch16.AttachmentOffset = App.Placement(App.Vector(0, 0, 5.6), App.Rotation())
sketch16.addGeometry(Part.LineSegment(App.Vector(-48.1, 23.2, 0), App.Vector(-48.1, 25.1, 0)), False)
sketch16.addGeometry(Part.LineSegment(App.Vector(-48.1, 25.1, 0), App.Vector(-49.8, 23.2, 0)), False)
sketch16.addGeometry(Part.LineSegment(App.Vector(-49.8, 23.2, 0), App.Vector(-48.1, 23.2, 0)), False)
sketch16.addConstraint(Sketcher.Constraint("Coincident", 0, 2, 1, 1))
sketch16.addConstraint(Sketcher.Constraint("Coincident", 1, 2, 2, 1))
sketch16.addConstraint(Sketcher.Constraint("Coincident", 2, 2, 0, 1))
sketch16.addConstraint(Sketcher.Constraint("Vertical", 0))
sketch16.addConstraint(Sketcher.Constraint("Horizontal", 2))
sketch16.addConstraint(Sketcher.Constraint("DistanceX", 0, 2, -1, 1, Q("48.1 mm")))
sketch16.addConstraint(Sketcher.Constraint("DistanceY", -1, 1, 0, 2, Q("25.08 mm")))
sketch16.addConstraint(Sketcher.Constraint("DistanceX", 2, 1, 2, 2, Q("1.6583 mm")))
sketch16.addConstraint(Sketcher.Constraint("DistanceY", 0, 1, 0, 2, Q("1.9237 mm")))
pad7 = body.newObject("PartDesign::Pad", "Pad006")
pad7.Profile = sketch16
pad7.Length = 11.2
pad7.Reversed = True

# Sketch on YZ plane
sketch17 = body.newObject("Sketcher::SketchObject", "Sketch016")
sketch17.AttachmentSupport = (doc.getObject("YZ_Plane"), [""])
sketch17.MapMode = "FlatFace"
sketch17.AttachmentOffset = App.Placement(App.Vector(0, 0, -46.6), App.Rotation())
sketch17.addGeometry(Part.LineSegment(App.Vector(-4.1, 16.1, 0), App.Vector(-4.1, 25.1, 0)), False)
sketch17.addGeometry(Part.LineSegment(App.Vector(-4.1, 25.1, 0), App.Vector(-5.6, 25.1, 0)), False)
sketch17.addGeometry(Part.LineSegment(App.Vector(-5.6, 25.1, 0), App.Vector(-5.6, 16.1, 0)), False)
sketch17.addGeometry(Part.LineSegment(App.Vector(-5.6, 16.1, 0), App.Vector(-4.1, 16.1, 0)), False)
sketch17.addGeometry(Part.LineSegment(App.Vector(5.6, 25.1, 0), App.Vector(4.1, 25.1, 0)), False)
sketch17.addGeometry(Part.LineSegment(App.Vector(4.1, 25.1, 0), App.Vector(4.1, 16.1, 0)), False)
sketch17.addGeometry(Part.LineSegment(App.Vector(4.1, 16.1, 0), App.Vector(5.6, 16.1, 0)), False)
sketch17.addGeometry(Part.LineSegment(App.Vector(5.6, 16.1, 0), App.Vector(5.6, 25.1, 0)), False)
sketch17.addConstraint(Sketcher.Constraint("Coincident", 0, 2, 1, 1))
sketch17.addConstraint(Sketcher.Constraint("Coincident", 1, 2, 2, 1))
sketch17.addConstraint(Sketcher.Constraint("Coincident", 2, 2, 3, 1))
sketch17.addConstraint(Sketcher.Constraint("Coincident", 3, 2, 0, 1))
sketch17.addConstraint(Sketcher.Constraint("Coincident", 4, 2, 5, 1))
sketch17.addConstraint(Sketcher.Constraint("Coincident", 5, 2, 6, 1))
sketch17.addConstraint(Sketcher.Constraint("Coincident", 6, 2, 7, 1))
sketch17.addConstraint(Sketcher.Constraint("Coincident", 7, 2, 4, 1))
sketch17.addConstraint(Sketcher.Constraint("Vertical", 0))
sketch17.addConstraint(Sketcher.Constraint("Horizontal", 1))
sketch17.addConstraint(Sketcher.Constraint("Vertical", 2))
sketch17.addConstraint(Sketcher.Constraint("Horizontal", 3))
sketch17.addConstraint(Sketcher.Constraint("Horizontal", 4))
sketch17.addConstraint(Sketcher.Constraint("Vertical", 5))
sketch17.addConstraint(Sketcher.Constraint("Horizontal", 6))
sketch17.addConstraint(Sketcher.Constraint("Vertical", 7))
sketch17.addConstraint(Sketcher.Constraint("Symmetric", 0, 2, 4, 2, -2))
sketch17.addConstraint(Sketcher.Constraint("Symmetric", 2, 2, 6, 2, -2))
sketch17.addConstraint(Sketcher.Constraint("DistanceY", 0, 1, 0, 2, Q("9 mm")))
sketch17.addConstraint(Sketcher.Constraint("DistanceX", 1, 2, 1, 1, Q("1.5 mm")))
sketch17.addConstraint(Sketcher.Constraint("DistanceX", 0, 2, -1, 1, Q("4.1 mm")))
sketch17.addConstraint(Sketcher.Constraint("DistanceY", -1, 1, 0, 2, Q("25.08 mm")))
pocket10 = body.newObject("PartDesign::Pocket", "Pocket009")
pocket10.Profile = sketch17
pocket10.Length = 20988

doc.recompute()
